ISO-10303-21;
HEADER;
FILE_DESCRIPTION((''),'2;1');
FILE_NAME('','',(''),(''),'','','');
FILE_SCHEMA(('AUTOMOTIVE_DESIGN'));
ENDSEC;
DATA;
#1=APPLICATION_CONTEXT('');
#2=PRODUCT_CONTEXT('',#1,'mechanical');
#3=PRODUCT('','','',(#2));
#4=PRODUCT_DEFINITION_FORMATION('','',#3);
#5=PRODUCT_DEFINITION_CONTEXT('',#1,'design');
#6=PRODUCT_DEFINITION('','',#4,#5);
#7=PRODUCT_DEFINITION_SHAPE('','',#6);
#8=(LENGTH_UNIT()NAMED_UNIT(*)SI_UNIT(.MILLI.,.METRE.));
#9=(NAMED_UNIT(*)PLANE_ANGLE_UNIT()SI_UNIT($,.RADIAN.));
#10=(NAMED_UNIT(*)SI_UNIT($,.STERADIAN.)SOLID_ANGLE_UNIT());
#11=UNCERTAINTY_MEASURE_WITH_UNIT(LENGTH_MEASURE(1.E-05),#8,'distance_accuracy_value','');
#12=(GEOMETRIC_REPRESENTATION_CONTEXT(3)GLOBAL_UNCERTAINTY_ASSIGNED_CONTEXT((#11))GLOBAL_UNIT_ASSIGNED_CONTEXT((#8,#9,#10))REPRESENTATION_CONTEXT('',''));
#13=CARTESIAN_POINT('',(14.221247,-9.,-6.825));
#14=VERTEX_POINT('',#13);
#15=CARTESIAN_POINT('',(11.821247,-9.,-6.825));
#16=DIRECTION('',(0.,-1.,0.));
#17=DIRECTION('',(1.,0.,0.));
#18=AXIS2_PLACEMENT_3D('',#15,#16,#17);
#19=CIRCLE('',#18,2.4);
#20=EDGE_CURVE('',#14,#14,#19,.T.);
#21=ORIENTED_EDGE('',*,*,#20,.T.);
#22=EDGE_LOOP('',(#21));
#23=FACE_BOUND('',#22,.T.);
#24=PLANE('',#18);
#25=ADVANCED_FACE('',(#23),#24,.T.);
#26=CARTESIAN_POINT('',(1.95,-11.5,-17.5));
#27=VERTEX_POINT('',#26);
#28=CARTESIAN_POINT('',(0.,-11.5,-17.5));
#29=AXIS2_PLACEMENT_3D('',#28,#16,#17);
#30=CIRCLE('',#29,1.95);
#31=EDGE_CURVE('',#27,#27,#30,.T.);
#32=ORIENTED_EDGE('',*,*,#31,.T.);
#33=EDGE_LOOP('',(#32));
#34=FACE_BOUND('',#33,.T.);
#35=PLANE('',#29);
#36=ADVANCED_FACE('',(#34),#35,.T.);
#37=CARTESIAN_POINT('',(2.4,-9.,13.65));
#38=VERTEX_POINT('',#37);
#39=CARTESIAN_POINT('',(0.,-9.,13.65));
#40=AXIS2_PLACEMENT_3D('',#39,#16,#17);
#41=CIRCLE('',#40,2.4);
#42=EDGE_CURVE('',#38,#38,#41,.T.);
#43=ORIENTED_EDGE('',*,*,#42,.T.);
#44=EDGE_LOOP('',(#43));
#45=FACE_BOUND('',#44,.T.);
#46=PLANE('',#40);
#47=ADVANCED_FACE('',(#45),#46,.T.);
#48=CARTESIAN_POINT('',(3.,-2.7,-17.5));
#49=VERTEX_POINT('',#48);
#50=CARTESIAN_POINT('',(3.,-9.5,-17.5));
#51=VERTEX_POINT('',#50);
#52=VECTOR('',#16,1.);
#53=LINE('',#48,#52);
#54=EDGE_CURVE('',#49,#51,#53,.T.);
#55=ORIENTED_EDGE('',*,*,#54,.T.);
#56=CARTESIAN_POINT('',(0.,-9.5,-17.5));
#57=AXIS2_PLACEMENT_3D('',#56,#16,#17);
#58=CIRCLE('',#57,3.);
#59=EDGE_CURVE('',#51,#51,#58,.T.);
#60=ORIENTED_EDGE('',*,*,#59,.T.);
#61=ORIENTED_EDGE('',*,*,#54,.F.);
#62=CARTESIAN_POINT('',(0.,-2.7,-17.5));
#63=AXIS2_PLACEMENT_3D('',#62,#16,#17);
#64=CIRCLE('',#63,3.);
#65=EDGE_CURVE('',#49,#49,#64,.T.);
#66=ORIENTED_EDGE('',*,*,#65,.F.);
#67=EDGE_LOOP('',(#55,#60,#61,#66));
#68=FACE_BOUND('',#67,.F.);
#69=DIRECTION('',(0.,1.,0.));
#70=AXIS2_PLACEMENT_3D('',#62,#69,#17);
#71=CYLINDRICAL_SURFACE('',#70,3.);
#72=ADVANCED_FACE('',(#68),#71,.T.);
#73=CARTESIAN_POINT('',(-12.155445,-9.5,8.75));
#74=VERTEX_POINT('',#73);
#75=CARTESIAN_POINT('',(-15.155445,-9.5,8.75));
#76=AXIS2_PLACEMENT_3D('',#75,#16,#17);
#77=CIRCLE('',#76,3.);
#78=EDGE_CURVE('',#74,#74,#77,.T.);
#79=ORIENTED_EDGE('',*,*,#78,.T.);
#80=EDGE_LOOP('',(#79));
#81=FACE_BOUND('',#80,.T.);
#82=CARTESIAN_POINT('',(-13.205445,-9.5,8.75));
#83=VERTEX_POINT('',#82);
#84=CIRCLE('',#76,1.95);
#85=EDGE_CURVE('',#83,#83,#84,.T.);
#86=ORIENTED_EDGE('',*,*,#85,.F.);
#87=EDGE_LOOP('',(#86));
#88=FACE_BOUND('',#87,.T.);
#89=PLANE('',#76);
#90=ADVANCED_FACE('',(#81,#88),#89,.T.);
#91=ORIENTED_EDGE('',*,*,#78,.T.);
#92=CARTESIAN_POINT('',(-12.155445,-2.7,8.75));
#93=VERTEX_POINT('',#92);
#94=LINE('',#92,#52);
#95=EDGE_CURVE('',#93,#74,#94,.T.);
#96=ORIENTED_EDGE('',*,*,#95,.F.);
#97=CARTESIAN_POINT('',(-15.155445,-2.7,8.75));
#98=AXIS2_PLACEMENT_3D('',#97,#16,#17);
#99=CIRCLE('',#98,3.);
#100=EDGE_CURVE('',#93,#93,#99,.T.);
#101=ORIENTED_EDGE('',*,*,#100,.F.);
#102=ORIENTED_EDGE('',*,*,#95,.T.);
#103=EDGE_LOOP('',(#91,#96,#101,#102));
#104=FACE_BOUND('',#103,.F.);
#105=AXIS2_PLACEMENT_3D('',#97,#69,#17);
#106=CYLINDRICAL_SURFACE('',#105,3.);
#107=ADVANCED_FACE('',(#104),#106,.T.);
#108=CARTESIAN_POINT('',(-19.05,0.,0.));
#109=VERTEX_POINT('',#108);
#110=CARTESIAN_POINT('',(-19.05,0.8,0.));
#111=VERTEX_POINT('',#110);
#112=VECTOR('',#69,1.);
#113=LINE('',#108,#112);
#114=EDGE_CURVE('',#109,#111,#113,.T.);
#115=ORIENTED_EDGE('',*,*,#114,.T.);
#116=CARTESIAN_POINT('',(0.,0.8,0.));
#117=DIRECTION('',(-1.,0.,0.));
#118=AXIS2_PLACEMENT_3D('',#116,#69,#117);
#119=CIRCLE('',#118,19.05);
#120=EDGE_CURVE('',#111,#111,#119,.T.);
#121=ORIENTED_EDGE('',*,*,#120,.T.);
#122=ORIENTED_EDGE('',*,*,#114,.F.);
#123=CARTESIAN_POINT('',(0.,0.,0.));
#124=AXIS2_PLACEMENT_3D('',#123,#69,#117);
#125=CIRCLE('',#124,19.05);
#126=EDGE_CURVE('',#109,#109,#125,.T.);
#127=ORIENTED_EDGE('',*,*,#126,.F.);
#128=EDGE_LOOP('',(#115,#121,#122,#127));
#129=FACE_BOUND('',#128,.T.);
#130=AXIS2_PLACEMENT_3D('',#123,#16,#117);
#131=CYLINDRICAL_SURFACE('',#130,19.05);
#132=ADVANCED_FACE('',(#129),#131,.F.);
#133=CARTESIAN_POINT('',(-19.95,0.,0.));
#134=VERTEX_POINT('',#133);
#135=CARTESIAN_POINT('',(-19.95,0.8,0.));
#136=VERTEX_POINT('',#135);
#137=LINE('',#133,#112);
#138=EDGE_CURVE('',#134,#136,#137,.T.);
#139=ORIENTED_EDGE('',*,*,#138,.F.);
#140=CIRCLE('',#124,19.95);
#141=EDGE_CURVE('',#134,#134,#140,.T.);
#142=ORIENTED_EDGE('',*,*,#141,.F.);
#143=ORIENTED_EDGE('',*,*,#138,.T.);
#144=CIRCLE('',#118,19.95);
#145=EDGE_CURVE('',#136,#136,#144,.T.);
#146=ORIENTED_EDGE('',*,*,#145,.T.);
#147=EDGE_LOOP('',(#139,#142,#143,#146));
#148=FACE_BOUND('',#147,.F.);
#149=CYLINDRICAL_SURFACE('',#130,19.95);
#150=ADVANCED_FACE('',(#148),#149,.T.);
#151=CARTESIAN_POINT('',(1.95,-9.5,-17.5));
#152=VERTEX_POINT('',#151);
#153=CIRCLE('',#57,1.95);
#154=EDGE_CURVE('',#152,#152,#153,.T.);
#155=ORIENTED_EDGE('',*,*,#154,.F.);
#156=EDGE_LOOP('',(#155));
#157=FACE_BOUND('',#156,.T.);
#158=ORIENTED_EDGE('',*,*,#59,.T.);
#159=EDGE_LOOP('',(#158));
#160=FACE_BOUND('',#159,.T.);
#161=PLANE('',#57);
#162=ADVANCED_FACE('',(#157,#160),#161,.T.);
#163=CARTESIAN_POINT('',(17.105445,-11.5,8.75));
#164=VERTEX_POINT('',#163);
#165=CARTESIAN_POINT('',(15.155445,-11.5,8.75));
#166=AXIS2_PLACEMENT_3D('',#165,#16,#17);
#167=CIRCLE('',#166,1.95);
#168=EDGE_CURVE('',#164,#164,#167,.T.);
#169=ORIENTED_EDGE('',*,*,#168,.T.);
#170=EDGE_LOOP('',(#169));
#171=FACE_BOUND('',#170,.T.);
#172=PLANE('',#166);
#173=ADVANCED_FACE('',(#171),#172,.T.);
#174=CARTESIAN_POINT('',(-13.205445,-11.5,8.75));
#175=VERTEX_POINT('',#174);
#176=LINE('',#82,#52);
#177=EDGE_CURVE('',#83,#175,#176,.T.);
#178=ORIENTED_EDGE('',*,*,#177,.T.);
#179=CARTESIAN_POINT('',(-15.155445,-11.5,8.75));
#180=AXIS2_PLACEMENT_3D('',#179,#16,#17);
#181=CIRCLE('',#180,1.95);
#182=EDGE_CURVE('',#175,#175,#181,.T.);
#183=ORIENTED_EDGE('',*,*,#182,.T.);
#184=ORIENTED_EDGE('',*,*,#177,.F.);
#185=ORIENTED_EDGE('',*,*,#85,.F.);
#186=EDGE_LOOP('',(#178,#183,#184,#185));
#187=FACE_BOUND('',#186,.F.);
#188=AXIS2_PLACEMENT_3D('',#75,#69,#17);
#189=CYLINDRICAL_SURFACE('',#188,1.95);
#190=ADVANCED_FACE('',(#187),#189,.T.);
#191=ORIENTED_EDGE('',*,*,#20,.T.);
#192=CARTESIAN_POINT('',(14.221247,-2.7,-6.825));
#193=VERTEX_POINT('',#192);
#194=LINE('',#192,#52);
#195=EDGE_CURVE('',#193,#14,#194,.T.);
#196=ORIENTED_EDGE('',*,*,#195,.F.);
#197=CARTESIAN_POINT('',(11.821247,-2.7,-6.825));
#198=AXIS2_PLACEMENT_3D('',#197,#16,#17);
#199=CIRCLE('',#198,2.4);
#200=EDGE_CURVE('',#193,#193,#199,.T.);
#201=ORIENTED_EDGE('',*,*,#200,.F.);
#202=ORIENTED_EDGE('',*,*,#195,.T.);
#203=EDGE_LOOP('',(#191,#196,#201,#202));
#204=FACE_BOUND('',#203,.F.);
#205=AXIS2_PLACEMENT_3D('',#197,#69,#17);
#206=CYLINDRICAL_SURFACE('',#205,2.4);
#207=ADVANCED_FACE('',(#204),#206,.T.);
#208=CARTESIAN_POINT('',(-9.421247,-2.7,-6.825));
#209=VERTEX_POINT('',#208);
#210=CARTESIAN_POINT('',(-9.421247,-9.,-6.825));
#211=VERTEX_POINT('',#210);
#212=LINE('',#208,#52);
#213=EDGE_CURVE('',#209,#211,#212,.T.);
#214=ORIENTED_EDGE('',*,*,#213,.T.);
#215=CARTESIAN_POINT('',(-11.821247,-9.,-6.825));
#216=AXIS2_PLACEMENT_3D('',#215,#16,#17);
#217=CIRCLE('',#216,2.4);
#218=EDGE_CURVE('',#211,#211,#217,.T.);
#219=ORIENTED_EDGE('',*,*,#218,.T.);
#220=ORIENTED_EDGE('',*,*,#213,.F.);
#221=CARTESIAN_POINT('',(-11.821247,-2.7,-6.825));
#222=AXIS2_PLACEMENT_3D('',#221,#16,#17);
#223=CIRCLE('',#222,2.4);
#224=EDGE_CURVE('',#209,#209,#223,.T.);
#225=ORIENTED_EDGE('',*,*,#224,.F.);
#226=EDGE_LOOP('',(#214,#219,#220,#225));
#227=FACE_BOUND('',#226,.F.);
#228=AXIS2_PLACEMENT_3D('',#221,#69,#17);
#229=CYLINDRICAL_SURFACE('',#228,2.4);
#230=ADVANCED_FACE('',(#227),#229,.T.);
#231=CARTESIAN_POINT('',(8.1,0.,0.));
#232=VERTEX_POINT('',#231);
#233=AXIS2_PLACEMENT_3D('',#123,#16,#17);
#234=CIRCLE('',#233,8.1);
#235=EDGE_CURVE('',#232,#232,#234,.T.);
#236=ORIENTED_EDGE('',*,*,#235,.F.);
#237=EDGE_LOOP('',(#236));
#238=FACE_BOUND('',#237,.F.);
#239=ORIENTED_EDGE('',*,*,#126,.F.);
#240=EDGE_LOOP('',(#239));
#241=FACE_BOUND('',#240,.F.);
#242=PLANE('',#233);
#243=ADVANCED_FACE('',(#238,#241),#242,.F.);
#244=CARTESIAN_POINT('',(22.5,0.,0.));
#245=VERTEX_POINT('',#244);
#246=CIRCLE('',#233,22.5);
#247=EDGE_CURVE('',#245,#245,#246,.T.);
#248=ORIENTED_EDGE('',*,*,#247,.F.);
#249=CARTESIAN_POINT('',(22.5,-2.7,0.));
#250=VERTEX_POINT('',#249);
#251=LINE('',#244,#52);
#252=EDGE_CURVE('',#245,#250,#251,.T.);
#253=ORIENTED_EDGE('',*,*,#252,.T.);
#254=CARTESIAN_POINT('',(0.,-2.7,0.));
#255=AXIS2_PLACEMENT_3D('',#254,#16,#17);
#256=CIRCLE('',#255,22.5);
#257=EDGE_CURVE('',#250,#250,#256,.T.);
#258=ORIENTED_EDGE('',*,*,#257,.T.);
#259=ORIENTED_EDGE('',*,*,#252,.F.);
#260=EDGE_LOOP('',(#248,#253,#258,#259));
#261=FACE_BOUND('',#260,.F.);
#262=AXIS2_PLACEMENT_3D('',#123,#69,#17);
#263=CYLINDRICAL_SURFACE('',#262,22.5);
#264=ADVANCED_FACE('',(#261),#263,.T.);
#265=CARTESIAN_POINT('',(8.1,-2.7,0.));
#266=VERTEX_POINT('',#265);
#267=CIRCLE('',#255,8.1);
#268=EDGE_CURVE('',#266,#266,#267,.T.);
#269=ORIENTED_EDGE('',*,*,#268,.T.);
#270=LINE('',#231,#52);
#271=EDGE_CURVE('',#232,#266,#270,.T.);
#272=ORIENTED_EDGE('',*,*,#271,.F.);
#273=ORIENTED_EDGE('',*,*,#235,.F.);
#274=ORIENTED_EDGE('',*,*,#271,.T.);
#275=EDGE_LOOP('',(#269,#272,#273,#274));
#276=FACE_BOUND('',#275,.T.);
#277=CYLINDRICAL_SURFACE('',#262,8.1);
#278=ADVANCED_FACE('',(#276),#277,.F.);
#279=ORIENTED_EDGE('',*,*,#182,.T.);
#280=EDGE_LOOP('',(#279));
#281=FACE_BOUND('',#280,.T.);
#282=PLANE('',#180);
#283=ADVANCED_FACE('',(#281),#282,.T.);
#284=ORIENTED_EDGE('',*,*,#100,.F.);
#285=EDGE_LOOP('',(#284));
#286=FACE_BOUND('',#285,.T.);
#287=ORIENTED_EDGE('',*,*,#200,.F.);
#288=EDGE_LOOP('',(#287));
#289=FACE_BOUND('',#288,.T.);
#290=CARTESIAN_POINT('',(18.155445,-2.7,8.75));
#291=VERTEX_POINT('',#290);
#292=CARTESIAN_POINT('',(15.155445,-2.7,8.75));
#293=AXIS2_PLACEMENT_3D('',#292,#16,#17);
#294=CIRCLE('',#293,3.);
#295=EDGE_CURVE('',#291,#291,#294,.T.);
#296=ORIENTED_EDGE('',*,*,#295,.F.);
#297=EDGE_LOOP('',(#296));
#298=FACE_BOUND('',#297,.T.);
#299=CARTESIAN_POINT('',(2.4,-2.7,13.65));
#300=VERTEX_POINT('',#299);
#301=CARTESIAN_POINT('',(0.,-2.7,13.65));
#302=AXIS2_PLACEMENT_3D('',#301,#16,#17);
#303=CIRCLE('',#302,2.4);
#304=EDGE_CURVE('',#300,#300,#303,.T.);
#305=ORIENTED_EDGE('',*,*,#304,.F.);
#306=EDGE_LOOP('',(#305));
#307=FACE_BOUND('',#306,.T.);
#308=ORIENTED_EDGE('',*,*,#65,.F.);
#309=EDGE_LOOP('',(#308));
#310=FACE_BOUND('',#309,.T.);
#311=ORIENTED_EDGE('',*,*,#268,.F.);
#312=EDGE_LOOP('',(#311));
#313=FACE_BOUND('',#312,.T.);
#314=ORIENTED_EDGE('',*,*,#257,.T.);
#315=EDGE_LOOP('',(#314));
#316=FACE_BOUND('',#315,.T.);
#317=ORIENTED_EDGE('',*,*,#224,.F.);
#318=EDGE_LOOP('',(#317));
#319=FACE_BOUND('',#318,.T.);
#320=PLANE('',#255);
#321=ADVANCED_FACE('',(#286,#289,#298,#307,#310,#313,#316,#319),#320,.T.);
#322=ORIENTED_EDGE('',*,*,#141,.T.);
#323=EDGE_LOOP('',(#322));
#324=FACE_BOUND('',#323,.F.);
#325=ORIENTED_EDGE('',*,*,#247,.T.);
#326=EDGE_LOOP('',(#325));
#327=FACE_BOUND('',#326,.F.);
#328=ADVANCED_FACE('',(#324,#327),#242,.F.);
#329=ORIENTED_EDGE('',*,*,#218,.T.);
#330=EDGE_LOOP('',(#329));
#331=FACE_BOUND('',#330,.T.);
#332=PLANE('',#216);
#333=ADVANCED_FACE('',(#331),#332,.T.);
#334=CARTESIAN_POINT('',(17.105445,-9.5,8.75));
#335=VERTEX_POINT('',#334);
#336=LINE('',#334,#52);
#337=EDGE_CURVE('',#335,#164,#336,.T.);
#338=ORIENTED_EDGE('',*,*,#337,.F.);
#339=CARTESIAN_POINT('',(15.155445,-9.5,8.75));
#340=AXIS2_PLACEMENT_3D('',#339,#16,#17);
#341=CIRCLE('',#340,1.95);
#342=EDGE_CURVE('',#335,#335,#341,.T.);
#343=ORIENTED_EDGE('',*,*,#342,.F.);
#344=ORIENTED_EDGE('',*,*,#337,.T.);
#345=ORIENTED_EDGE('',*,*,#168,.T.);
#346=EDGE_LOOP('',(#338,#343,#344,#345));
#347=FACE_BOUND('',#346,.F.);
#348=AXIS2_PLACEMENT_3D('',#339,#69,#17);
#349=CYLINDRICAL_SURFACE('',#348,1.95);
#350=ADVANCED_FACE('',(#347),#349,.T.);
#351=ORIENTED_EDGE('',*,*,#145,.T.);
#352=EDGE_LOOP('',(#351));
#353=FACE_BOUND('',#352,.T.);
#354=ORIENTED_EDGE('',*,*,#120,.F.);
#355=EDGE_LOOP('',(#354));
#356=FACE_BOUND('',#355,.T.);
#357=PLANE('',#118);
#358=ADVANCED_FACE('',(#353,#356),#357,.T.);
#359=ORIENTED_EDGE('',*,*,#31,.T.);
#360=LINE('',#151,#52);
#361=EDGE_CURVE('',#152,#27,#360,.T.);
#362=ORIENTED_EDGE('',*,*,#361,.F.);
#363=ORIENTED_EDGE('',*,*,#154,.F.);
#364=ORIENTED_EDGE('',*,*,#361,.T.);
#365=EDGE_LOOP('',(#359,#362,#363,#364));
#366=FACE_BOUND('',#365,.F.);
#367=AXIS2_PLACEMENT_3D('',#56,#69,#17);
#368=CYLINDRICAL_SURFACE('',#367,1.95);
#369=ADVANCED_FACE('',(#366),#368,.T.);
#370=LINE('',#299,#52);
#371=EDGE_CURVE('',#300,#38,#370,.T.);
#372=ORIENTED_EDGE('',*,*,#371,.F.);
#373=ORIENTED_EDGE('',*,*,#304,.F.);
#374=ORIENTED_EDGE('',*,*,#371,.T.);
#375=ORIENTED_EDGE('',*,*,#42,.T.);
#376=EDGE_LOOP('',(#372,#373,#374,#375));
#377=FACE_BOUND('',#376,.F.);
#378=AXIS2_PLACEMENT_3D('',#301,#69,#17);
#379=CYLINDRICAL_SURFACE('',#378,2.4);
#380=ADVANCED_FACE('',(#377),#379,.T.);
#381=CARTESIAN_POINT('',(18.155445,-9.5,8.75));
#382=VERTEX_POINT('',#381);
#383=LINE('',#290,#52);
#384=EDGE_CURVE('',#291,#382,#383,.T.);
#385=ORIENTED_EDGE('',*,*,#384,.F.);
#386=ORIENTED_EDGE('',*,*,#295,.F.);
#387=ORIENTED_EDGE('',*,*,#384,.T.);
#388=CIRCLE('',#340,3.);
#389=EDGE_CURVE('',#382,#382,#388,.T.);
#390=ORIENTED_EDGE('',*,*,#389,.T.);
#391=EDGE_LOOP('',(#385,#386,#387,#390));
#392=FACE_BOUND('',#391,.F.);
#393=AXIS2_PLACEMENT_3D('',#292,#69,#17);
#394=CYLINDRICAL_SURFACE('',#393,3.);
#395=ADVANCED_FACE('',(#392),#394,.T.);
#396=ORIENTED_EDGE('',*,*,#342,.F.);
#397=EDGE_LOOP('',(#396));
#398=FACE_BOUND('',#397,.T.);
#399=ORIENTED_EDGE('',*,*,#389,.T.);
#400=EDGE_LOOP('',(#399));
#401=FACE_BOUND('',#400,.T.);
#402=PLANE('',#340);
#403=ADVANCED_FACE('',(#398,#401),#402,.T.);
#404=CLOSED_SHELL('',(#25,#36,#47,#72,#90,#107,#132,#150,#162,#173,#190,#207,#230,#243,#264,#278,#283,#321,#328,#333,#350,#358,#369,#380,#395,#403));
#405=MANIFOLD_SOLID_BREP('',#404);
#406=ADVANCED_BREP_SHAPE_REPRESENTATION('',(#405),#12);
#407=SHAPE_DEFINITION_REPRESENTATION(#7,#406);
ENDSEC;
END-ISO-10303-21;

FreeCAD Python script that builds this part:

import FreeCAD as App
import Part
import Sketcher
Q = App.Units.Quantity

doc = App.newDocument("Part")
body = doc.addObject("PartDesign::Body", "Body")

sketch1 = body.newObject("Sketcher::SketchObject", "Sketch")
sketch1.AttachmentSupport = (doc.getObject("XZ_Plane"), [""])
sketch1.MapMode = "FlatFace"
sketch1.addGeometry([
    Part.Circle(App.Vector(0, 0, 0), App.Vector(0, 0, 1), 22.5),
    Part.Circle(App.Vector(0, 0, 0), App.Vector(0, 0, 1), 8.1),
], False)
sketch1.addConstraint([
    Sketcher.Constraint("Coincident", 0, 3, -1, 1),
    Sketcher.Constraint("Coincident", 1, 3, -1, 1),
    Sketcher.Constraint("Diameter", 0, Q("45 mm")),
    Sketcher.Constraint("Diameter", 1, Q("16.2 mm")),
])
pad1 = body.newObject("PartDesign::Pad", "Pad")
pad1.Profile = sketch1
pad1.Length = 2.7

sketch2 = body.newObject("Sketcher::SketchObject", "Sketch001")
sketch2.AttachmentSupport = (doc.getObject("XZ_Plane"), [""])
sketch2.MapMode = "FlatFace"
sketch2.AttachmentOffset = App.Placement(App.Vector(0, 0, 2.7), App.Rotation())
sketch2.addGeometry([
    Part.Circle(App.Vector(0, 13.65, 0), App.Vector(0, 0, 1), 2.4),
    Part.Circle(App.Vector(-11.821247, -6.825, 0), App.Vector(0, 0, 1), 2.4),
    Part.Circle(App.Vector(11.821247, -6.825, 0), App.Vector(0, 0, 1), 2.4),
], False)
sketch2.addConstraint([
    Sketcher.Constraint("Equal", 0, 1),
    Sketcher.Constraint("Equal", 1, 2),
    Sketcher.Constraint("Symmetric", 1, 3, 2, 3, -2),
    Sketcher.Constraint("PointOnObject", 0, 3, -2),
    Sketcher.Constraint("Diameter", 0, Q("4.8 mm")),
    Sketcher.Constraint("DistanceY", -1, 1, 0, 3, Q("13.65 mm")),
    Sketcher.Constraint("DistanceY", 1, 3, -1, 1, Q("6.825 mm")),
    Sketcher.Constraint("DistanceX", 1, 3, -1, 1, Q("11.821247 mm")),
])
pad2 = body.newObject("PartDesign::Pad", "Pad001")
pad2.Profile = sketch2
pad2.Length = 6.3

sketch3 = body.newObject("Sketcher::SketchObject", "Sketch002")
sketch3.AttachmentSupport = (doc.getObject("XZ_Plane"), [""])
sketch3.MapMode = "FlatFace"
sketch3.AttachmentOffset = App.Placement(App.Vector(0, 0, 2.7), App.Rotation())
sketch3.addGeometry([
    Part.Circle(App.Vector(0, -17.5, 0), App.Vector(0, 0, 1), 3),
    Part.Circle(App.Vector(15.155445, 8.75, 0), App.Vector(0, 0, 1), 3),
    Part.Circle(App.Vector(-15.155445, 8.75, 0), App.Vector(0, 0, 1), 3),
], False)
sketch3.addConstraint([
    Sketcher.Constraint("Equal", 0, 1),
    Sketcher.Constraint("Equal", 1, 2),
    Sketcher.Constraint("Symmetric", 1, 3, 2, 3, -2),
    Sketcher.Constraint("PointOnObject", 0, 3, -2),
    Sketcher.Constraint("Diameter", 0, Q("6 mm")),
    Sketcher.Constraint("DistanceY", 0, 3, -1, 1, Q("17.5 mm")),
    Sketcher.Constraint("DistanceY", -1, 1, 1, 3, Q("8.75 mm")),
    Sketcher.Constraint("DistanceX", 2, 3, 1, 3, Q("30.31089 mm")),
])
pad3 = body.newObject("PartDesign::Pad", "Pad002")
pad3.Profile = sketch3
pad3.Length = 6.8

sketch4 = body.newObject("Sketcher::SketchObject", "Sketch003")
sketch4.AttachmentSupport = (doc.getObject("XZ_Plane"), [""])
sketch4.MapMode = "FlatFace"
sketch4.AttachmentOffset = App.Placement(App.Vector(0, 0, 9.5), App.Rotation())
sketch4.addGeometry([
    Part.Circle(App.Vector(0, -17.5, 0), App.Vector(0, 0, 1), 1.95),
    Part.Circle(App.Vector(-15.155445, 8.75, 0), App.Vector(0, 0, 1), 1.95),
    Part.Circle(App.Vector(15.155445, 8.75, 0), App.Vector(0, 0, 1), 1.95),
], False)
sketch4.addConstraint([
    Sketcher.Constraint("Equal", 0, 1),
    Sketcher.Constraint("Equal", 1, 2),
    Sketcher.Constraint("Symmetric", 1, 3, 2, 3, -2),
    Sketcher.Constraint("PointOnObject", 0, 3, -2),
    Sketcher.Constraint("Diameter", 0, Q("3.9 mm")),
    Sketcher.Constraint("DistanceY", 0, 3, -1, 1, Q("17.5 mm")),
    Sketcher.Constraint("DistanceY", -1, 1, 1, 3, Q("8.75 mm")),
    Sketcher.Constraint("DistanceX", 1, 3, 2, 3, Q("30.31089 mm")),
])
pad4 = body.newObject("PartDesign::Pad", "Pad003")
pad4.Profile = sketch4
pad4.Length = 2

sketch5 = body.newObject("Sketcher::SketchObject", "Sketch004")
sketch5.AttachmentSupport = (doc.getObject("XZ_Plane"), [""])
sketch5.MapMode = "FlatFace"
sketch5.addGeometry([
    Part.Circle(App.Vector(0, 0, 0), App.Vector(0, 0, 1), 19.95),
    Part.Circle(App.Vector(0, 0, 0), App.Vector(0, 0, 1), 19.05),
], False)
sketch5.addConstraint([
    Sketcher.Constraint("Coincident", 0, 3, -1, 1),
    Sketcher.Constraint("Coincident", 1, 3, -1, 1),
    Sketcher.Constraint("Diameter", 0, Q("39.9 mm")),
    Sketcher.Constraint("Diameter", 1, Q("38.1 mm")),
])
pad5 = body.newObject("PartDesign::Pad", "Pad004")
pad5.Profile = sketch5
pad5.Length = 0.8
pad5.Reversed = True

doc.recompute()
